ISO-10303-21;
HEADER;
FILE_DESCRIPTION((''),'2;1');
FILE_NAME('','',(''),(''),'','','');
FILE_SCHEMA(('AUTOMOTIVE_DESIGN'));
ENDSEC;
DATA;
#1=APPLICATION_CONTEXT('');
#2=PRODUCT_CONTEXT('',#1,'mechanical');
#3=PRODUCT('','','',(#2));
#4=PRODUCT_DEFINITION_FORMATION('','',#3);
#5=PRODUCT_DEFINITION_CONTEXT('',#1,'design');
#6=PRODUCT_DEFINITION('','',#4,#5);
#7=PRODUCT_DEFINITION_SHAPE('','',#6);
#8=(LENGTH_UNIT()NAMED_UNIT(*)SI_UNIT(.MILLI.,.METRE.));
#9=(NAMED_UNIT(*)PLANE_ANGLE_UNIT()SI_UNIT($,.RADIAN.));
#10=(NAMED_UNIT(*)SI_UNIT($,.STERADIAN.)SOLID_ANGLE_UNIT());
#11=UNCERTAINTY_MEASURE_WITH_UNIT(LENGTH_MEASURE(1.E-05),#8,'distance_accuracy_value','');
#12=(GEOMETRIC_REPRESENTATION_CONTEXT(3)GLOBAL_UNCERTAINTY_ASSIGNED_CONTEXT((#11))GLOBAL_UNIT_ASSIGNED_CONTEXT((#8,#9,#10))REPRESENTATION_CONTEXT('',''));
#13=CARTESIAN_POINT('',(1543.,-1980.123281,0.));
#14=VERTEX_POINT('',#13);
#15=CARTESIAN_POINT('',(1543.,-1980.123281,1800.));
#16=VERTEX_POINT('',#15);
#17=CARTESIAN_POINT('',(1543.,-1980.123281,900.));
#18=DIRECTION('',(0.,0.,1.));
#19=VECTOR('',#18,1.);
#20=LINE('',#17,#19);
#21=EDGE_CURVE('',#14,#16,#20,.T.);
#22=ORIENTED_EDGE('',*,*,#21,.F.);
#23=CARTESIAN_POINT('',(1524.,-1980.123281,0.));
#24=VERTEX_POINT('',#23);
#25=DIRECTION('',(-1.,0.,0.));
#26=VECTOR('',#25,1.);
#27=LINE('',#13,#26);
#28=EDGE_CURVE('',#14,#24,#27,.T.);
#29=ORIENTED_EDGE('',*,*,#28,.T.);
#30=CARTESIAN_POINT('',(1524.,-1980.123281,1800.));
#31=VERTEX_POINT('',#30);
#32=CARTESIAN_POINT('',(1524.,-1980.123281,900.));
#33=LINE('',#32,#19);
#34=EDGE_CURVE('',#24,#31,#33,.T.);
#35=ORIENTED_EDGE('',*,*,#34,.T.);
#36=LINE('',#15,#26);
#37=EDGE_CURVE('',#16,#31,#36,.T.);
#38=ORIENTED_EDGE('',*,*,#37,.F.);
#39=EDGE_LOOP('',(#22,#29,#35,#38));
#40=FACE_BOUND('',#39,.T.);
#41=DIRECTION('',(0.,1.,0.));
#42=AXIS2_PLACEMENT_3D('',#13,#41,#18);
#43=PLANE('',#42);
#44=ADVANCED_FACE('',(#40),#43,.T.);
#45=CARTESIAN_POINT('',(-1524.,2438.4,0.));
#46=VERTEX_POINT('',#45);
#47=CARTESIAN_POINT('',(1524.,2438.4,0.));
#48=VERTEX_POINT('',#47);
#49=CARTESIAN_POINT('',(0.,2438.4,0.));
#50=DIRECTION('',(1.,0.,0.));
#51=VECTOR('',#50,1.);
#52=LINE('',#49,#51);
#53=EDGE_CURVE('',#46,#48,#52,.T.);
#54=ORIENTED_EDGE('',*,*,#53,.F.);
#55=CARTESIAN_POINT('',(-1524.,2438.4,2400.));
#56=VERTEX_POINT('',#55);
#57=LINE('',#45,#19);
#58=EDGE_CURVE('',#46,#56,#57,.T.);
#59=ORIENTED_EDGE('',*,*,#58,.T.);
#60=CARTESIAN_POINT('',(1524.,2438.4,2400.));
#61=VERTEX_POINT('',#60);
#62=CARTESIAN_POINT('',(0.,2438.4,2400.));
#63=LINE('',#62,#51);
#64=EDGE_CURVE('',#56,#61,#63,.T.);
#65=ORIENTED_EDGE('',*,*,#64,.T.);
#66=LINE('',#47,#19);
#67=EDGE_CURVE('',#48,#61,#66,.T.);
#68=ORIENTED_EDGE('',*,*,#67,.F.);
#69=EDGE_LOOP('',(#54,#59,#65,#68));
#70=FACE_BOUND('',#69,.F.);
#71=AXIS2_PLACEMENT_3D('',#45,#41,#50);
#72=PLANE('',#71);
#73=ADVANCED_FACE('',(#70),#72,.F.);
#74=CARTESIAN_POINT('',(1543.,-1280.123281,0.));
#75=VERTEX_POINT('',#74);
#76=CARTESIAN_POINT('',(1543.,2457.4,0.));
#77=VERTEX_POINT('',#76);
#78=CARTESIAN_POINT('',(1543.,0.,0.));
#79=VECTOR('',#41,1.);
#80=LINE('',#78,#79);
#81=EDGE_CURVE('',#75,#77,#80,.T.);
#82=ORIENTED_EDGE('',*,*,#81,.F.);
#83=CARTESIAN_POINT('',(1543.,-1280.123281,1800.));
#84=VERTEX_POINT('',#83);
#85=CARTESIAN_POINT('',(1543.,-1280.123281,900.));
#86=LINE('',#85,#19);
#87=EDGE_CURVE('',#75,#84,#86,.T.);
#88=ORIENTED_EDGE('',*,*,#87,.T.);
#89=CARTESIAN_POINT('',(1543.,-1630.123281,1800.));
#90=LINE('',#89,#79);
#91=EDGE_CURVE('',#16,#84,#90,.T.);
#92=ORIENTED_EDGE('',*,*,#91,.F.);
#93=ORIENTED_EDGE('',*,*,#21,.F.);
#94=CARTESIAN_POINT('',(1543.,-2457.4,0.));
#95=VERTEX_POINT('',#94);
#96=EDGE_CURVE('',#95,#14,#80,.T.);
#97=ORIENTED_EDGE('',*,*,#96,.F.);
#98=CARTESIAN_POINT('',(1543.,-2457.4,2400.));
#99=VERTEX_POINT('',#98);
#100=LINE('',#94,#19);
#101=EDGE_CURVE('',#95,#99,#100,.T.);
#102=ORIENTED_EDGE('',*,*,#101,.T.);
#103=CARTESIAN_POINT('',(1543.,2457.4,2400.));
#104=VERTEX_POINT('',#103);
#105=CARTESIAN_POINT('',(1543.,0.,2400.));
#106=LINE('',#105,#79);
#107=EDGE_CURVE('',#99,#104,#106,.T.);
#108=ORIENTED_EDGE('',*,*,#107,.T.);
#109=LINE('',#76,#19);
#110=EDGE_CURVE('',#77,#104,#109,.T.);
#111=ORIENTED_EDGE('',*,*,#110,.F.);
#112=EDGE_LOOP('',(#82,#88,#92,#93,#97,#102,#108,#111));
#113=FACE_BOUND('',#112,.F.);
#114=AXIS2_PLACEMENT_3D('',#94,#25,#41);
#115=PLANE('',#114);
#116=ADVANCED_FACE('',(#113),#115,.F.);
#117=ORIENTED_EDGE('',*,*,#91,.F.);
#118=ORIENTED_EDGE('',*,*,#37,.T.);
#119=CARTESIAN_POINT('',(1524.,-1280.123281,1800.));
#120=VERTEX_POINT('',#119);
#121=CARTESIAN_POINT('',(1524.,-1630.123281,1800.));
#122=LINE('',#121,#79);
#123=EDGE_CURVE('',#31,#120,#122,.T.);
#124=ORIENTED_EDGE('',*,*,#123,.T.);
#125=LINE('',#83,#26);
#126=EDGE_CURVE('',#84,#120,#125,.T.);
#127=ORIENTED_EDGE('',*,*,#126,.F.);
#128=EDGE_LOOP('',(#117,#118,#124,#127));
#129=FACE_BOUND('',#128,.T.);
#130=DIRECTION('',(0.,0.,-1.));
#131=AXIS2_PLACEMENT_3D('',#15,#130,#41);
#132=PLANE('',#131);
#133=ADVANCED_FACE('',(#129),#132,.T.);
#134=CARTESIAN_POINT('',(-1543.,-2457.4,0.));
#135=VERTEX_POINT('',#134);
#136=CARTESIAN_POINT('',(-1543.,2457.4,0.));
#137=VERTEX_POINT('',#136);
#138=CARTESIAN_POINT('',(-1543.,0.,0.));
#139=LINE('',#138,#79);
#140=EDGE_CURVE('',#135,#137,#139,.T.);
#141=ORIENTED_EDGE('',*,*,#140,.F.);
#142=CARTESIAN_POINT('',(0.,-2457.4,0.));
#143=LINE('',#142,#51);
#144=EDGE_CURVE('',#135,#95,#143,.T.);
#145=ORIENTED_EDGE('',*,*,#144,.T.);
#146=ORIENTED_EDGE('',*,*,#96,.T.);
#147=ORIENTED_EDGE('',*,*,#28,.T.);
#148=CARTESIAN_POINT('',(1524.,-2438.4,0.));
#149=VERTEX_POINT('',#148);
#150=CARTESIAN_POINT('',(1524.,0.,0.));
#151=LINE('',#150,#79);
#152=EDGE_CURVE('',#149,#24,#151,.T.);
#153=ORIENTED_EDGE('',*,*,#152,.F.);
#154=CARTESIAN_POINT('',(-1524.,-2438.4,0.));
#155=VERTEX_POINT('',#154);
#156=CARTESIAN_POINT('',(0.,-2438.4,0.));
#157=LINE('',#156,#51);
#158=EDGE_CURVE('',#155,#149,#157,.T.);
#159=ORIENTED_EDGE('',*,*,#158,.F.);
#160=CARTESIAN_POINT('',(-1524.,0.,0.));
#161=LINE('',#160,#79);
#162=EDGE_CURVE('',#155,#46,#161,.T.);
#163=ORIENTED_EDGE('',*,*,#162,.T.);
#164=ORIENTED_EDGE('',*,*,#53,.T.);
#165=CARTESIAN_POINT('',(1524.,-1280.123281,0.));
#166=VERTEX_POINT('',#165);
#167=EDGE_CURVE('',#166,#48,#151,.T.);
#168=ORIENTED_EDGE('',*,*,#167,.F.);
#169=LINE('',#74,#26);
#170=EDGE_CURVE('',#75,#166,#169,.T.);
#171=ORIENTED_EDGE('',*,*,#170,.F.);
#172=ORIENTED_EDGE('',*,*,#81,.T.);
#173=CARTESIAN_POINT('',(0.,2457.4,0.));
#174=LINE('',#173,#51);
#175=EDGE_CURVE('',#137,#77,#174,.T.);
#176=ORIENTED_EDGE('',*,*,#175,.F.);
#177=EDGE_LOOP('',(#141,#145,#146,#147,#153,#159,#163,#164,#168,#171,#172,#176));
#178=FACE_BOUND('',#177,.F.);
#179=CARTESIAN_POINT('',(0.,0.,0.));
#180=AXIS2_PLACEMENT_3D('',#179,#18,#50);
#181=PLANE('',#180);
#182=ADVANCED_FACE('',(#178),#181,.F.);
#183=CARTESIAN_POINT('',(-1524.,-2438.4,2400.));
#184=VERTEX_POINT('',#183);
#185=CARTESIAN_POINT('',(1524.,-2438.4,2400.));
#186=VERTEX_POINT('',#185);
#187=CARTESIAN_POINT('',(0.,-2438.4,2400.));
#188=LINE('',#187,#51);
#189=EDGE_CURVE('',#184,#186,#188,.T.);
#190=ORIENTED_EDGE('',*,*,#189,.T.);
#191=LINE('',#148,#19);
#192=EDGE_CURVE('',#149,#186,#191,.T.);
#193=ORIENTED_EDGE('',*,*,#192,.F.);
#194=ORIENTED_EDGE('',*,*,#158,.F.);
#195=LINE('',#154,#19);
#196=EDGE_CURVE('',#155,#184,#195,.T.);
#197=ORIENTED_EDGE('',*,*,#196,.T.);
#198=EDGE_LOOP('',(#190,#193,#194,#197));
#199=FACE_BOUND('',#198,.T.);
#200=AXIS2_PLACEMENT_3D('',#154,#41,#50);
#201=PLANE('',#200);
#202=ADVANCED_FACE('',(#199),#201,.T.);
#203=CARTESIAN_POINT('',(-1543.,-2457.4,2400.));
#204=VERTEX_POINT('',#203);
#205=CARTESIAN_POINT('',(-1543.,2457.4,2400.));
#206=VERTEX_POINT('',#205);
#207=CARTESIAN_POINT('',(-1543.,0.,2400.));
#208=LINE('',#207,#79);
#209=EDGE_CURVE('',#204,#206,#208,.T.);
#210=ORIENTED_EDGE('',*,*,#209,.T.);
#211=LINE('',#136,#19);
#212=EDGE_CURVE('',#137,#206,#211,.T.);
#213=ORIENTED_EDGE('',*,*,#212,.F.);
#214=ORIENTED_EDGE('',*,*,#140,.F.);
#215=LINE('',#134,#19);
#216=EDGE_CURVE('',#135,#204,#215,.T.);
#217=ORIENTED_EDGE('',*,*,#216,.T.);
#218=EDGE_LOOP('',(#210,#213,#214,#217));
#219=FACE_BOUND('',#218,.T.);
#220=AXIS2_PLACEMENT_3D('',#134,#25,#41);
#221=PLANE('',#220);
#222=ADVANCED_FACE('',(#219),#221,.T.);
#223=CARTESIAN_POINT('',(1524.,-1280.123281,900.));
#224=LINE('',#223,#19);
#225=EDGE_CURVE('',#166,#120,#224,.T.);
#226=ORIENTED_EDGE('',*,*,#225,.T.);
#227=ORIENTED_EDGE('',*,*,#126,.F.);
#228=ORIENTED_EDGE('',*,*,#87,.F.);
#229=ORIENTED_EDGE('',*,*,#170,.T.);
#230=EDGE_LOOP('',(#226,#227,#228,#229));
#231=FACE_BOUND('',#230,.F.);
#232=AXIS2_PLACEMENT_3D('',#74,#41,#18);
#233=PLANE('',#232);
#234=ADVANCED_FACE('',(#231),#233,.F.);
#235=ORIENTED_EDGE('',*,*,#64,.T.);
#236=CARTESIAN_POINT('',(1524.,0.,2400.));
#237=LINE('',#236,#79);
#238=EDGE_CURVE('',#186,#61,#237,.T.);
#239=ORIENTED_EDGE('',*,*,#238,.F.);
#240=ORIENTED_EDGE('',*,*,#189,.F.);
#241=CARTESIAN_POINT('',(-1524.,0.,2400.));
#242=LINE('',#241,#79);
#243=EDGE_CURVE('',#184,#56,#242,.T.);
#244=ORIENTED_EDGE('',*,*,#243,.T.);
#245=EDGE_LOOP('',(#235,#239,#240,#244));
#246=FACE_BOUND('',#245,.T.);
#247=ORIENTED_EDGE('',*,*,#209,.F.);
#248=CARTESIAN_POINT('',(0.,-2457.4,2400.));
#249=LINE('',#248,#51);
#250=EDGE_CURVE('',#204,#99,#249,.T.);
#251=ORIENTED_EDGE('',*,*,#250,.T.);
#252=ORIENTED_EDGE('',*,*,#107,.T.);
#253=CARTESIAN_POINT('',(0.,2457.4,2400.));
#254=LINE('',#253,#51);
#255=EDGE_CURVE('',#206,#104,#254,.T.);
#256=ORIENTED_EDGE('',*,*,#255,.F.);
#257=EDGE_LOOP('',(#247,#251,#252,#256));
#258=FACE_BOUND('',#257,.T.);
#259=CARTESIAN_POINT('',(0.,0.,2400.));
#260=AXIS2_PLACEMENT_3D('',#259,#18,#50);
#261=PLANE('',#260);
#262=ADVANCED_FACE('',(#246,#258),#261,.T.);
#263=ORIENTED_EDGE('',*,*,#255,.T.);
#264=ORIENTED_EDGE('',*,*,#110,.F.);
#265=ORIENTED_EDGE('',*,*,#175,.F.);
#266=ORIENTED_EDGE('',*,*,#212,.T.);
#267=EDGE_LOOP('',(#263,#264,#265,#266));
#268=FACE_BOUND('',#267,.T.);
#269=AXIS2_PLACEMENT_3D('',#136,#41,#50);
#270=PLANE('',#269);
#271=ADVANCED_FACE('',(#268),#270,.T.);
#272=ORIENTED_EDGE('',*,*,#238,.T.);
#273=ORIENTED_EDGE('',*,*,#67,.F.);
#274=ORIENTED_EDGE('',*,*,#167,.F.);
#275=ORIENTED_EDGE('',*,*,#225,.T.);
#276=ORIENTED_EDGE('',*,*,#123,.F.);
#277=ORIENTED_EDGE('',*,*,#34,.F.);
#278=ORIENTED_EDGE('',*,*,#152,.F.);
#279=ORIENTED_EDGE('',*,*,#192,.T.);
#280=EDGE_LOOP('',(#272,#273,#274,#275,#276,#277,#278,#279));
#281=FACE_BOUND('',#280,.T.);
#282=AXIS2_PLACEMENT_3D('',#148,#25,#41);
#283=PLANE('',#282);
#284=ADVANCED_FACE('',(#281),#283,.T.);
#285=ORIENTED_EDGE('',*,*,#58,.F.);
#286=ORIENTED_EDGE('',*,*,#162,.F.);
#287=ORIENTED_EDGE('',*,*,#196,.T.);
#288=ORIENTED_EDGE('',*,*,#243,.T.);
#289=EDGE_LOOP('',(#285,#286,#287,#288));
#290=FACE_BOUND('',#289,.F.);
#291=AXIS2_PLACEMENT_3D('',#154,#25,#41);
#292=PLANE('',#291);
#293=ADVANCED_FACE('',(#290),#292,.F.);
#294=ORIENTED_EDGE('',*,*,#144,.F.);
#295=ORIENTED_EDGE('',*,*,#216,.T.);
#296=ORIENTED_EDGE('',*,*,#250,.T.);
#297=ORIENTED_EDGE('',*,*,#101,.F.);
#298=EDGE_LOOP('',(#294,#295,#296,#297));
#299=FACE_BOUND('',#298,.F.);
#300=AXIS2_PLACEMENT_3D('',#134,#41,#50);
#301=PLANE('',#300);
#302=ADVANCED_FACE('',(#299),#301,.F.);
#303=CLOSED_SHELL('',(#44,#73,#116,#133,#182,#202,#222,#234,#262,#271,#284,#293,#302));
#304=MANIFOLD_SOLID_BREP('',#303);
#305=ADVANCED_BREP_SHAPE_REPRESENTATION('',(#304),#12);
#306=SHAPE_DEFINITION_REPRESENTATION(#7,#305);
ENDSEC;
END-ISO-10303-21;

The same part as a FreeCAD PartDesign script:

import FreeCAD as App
import Part
import Sketcher

V = App.Vector
Q = App.Units.Quantity

doc = App.newDocument("Part")
body = doc.addObject("PartDesign::Body", "Body")

sketch1 = body.newObject("Sketcher::SketchObject", "Sketch")
sketch1.AttachmentSupport = (doc.getObject("XY_Plane"), [""])
sketch1.MapMode = "FlatFace"
sketch1.addGeometry(Part.LineSegment(V(-1543, 2457.4, 0), V(-1543, -2457.4, 0)), False)
sketch1.addGeometry(Part.LineSegment(V(-1543, -2457.4, 0), V(1543, -2457.4, 0)), False)
sketch1.addGeometry(Part.LineSegment(V(1543, -2457.4, 0), V(1543, 2457.4, 0)), False)
sketch1.addGeometry(Part.LineSegment(V(1543, 2457.4, 0), V(-1543, 2457.4, 0)), False)
sketch1.addGeometry(Part.LineSegment(V(1524, -2438.4, 0), V(-1524, -2438.4, 0)), False)
sketch1.addGeometry(Part.LineSegment(V(-1524, -2438.4, 0), V(-1524, 2438.4, 0)), False)
sketch1.addGeometry(Part.LineSegment(V(-1524, 2438.4, 0), V(1524, 2438.4, 0)), False)
sketch1.addGeometry(Part.LineSegment(V(1524, 2438.4, 0), V(1524, -2438.4, 0)), False)
sketch1.addConstraint(Sketcher.Constraint("Coincident", 0, 2, 1, 1))
sketch1.addConstraint(Sketcher.Constraint("Coincident", 1, 2, 2, 1))
sketch1.addConstraint(Sketcher.Constraint("Coincident", 2, 2, 3, 1))
sketch1.addConstraint(Sketcher.Constraint("Coincident", 3, 2, 0, 1))
sketch1.addConstraint(Sketcher.Constraint("Coincident", 4, 2, 5, 1))
sketch1.addConstraint(Sketcher.Constraint("Coincident", 5, 2, 6, 1))
sketch1.addConstraint(Sketcher.Constraint("Coincident", 6, 2, 7, 1))
sketch1.addConstraint(Sketcher.Constraint("Coincident", 7, 2, 4, 1))
sketch1.addConstraint(Sketcher.Constraint("Vertical", 0))
sketch1.addConstraint(Sketcher.Constraint("Horizontal", 1))
sketch1.addConstraint(Sketcher.Constraint("Vertical", 2))
sketch1.addConstraint(Sketcher.Constraint("Horizontal", 3))
sketch1.addConstraint(Sketcher.Constraint("Horizontal", 4))
sketch1.addConstraint(Sketcher.Constraint("Vertical", 5))
sketch1.addConstraint(Sketcher.Constraint("Horizontal", 6))
sketch1.addConstraint(Sketcher.Constraint("Vertical", 7))
sketch1.addConstraint(Sketcher.Constraint("Symmetric", 0, 2, 2, 2, -1, 1))
sketch1.addConstraint(Sketcher.Constraint("Symmetric", 4, 2, 6, 2, -1, 1))
sketch1.addConstraint(Sketcher.Constraint("DistanceX", 1, 1, 1, 2, Q("3086 mm")))
sketch1.addConstraint(Sketcher.Constraint("DistanceX", 4, 2, 4, 1, Q("3048 mm")))
sketch1.addConstraint(Sketcher.Constraint("DistanceY", 0, 2, 0, 1, Q("4914.8 mm")))
sketch1.addConstraint(Sketcher.Constraint("DistanceY", 5, 1, 5, 2, Q("4876.8 mm")))
pad1 = body.newObject("PartDesign::Pad", "Pad")
pad1.Profile = sketch1
pad1.Length = 2400

sketch2 = body.newObject("Sketcher::SketchObject", "Sketch001")
sketch2.AttachmentSupport = (doc.getObject("YZ_Plane"), [""])
sketch2.MapMode = "FlatFace"
sketch2.AttachmentOffset = App.Placement(V(0, 0, 1543), App.Rotation())
sketch2.addGeometry(Part.LineSegment(V(-1980.123281, 1800, 0), V(-1980.123281, 0, 0)), False)
sketch2.addGeometry(Part.LineSegment(V(-1980.123281, 0, 0), V(-1280.123281, 0, 0)), False)
sketch2.addGeometry(Part.LineSegment(V(-1280.123281, 0, 0), V(-1280.123281, 1800, 0)), False)
sketch2.addGeometry(Part.LineSegment(V(-1280.123281, 1800, 0), V(-1980.123281, 1800, 0)), False)
sketch2.addConstraint(Sketcher.Constraint("Coincident", 0, 2, 1, 1))
sketch2.addConstraint(Sketcher.Constraint("Coincident", 1, 2, 2, 1))
sketch2.addConstraint(Sketcher.Constraint("Coincident", 2, 2, 3, 1))
sketch2.addConstraint(Sketcher.Constraint("Coincident", 3, 2, 0, 1))
sketch2.addConstraint(Sketcher.Constraint("Vertical", 0))
sketch2.addConstraint(Sketcher.Constraint("Horizontal", 1))
sketch2.addConstraint(Sketcher.Constraint("Vertical", 2))
sketch2.addConstraint(Sketcher.Constraint("Horizontal", 3))
sketch2.addConstraint(Sketcher.Constraint("PointOnObject", 0, 2, -1))
sketch2.addConstraint(Sketcher.Constraint("DistanceX", 1, 1, 1, 2, Q("700 mm")))
sketch2.addConstraint(Sketcher.Constraint("DistanceY", 0, 2, 0, 1, Q("1800 mm")))
sketch2.addConstraint(Sketcher.Constraint("DistanceX", 0, 2, -1, 1, Q("1980.123281 mm")))
pocket1 = body.newObject("PartDesign::Pocket", "Pocket")
pocket1.Profile = sketch2
pocket1.Length = 19

doc.recompute()
